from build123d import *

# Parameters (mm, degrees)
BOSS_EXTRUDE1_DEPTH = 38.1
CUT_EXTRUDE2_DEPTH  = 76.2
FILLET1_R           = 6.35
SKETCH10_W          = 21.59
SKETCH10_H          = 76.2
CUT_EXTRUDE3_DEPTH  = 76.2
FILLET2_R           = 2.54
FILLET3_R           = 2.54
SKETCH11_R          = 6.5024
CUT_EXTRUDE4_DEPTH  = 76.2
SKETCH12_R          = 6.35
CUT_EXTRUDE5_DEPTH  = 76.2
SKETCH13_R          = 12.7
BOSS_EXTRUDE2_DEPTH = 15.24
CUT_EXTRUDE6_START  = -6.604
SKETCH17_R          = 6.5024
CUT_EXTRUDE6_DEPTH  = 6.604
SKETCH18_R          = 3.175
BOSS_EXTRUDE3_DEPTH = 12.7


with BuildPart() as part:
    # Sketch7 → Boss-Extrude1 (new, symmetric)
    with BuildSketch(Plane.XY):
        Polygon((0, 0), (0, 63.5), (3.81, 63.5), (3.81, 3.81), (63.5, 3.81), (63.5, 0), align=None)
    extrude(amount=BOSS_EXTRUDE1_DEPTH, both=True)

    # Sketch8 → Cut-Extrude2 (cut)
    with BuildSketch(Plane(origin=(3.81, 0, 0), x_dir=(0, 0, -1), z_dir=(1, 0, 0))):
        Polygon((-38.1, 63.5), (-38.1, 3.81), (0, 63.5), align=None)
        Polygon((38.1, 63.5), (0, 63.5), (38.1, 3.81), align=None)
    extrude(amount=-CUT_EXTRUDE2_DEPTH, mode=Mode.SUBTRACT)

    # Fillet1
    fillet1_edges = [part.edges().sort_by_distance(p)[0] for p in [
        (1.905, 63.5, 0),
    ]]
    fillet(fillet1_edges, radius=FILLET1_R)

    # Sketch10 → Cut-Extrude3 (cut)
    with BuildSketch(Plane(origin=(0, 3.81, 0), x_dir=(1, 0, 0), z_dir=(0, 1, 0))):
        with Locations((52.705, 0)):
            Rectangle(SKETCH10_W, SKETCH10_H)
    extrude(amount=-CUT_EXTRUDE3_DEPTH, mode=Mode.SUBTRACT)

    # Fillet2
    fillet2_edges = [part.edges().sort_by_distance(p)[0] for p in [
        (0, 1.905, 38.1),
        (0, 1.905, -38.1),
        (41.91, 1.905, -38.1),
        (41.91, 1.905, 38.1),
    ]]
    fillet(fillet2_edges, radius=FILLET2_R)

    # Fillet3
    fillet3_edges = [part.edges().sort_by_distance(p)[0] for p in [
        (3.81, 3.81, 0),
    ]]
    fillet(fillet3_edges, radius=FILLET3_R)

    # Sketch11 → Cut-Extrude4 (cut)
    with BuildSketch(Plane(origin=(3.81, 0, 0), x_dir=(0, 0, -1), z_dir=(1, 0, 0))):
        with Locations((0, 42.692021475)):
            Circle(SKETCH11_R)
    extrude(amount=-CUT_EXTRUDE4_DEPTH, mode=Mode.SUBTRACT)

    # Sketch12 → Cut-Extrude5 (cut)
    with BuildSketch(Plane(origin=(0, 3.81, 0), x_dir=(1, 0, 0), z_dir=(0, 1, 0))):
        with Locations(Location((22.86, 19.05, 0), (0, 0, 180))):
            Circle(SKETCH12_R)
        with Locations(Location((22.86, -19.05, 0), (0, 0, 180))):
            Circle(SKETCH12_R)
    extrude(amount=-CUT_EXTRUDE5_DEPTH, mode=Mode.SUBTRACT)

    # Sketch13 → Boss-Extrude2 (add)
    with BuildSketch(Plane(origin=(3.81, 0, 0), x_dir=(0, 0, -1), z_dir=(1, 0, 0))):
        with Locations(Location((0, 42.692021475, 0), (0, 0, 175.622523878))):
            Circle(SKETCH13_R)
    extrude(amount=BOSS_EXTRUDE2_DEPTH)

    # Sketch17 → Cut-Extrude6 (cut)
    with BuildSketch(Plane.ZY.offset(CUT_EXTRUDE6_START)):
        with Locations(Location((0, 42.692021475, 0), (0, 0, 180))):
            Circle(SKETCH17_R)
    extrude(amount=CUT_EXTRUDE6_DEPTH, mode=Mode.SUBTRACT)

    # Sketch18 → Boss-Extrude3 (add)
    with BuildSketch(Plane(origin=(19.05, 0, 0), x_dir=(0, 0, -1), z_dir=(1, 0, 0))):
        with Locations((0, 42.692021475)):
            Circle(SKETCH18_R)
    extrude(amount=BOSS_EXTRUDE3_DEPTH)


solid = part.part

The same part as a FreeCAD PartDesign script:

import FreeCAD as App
import Part
import Sketcher
from FreeCAD import Vector
Q = App.Units.Quantity


def edges_at(feature, points):
    """Names of the edges that pass closest to the given points."""
    edges = feature.Shape.Edges
    near = lambda p: min(range(len(edges)), key=lambda i: edges[i].distToShape(Part.Vertex(*p))[0])
    return sorted({f"Edge{near(p) + 1}" for p in points})


def add_polygon(sketch, points):
    """Adds a closed chain of lines whose ends are joined by coincident constraints."""
    first, n = sketch.GeometryCount, len(points)
    for a, b in zip(points, points[1:] + points[:1]):
        sketch.addGeometry(Part.LineSegment(App.Vector(*a, 0), App.Vector(*b, 0)), False)
    for i in range(n):
        sketch.addConstraint(Sketcher.Constraint("Coincident", first + i, 2, first + (i + 1) % n, 1))

doc = App.newDocument("Part")
body = doc.addObject("PartDesign::Body", "Body")

# Sketch on XY plane
sketch1 = body.newObject("Sketcher::SketchObject", "Sketch")
sketch1.AttachmentSupport = (doc.getObject("XY_Plane"), [""])
sketch1.MapMode = "FlatFace"
add_polygon(sketch1, [(0, 63.5), (0, 0), (63.5, 0), (63.5, 3.8), (3.8, 3.8), (3.8, 63.5)])  # lines 0-5
sketch1.addConstraint(Sketcher.Constraint("Vertical", 0))
sketch1.addConstraint(Sketcher.Constraint("Horizontal", 1))
sketch1.addConstraint(Sketcher.Constraint("Vertical", 2))
sketch1.addConstraint(Sketcher.Constraint("Horizontal", 3))
sketch1.addConstraint(Sketcher.Constraint("Vertical", 4))
sketch1.addConstraint(Sketcher.Constraint("Horizontal", 5))
sketch1.addConstraint(Sketcher.Constraint("Coincident", 0, 2, -1, 1))
sketch1.addConstraint(Sketcher.Constraint("Equal", 1, 0))
sketch1.addConstraint(Sketcher.Constraint("Equal", 5, 2))
sketch1.addConstraint(Sketcher.Constraint("DistanceX", 1, 1, 1, 2, Q("2.5 in")))
sketch1.addConstraint(Sketcher.Constraint("DistanceX", 3, 2, 3, 1, Q("2.35 in")))
pad1 = body.newObject("PartDesign::Pad", "Pad")
pad1.Profile = sketch1
pad1.Length = Q("3 in")
pad1.Midplane = True

# Sketch on YZ plane
sketch2 = body.newObject("Sketcher::SketchObject", "Sketch001")
sketch2.AttachmentSupport = (doc.getObject("YZ_Plane"), [""])
sketch2.MapMode = "FlatFace"
sketch2.AttachmentOffset = App.Placement(Vector(0, 0, 0.15 * 25.4), App.Rotation())
add_polygon(sketch2, [(64, 38), (4, 38), (64, 0)])  # lines 0-2
add_polygon(sketch2, [(64, -38), (64, 0), (4, -38)])  # lines 3-5
sketch2.addConstraint(Sketcher.Constraint("Horizontal", 0))
sketch2.addConstraint(Sketcher.Constraint("Vertical", 2))
sketch2.addConstraint(Sketcher.Constraint("Vertical", 3))
sketch2.addConstraint(Sketcher.Constraint("Horizontal", 5))
sketch2.addConstraint(Sketcher.Constraint("Coincident", 3, 2, 1, 2))
sketch2.addConstraint(Sketcher.Constraint("Symmetric", 0, 2, 4, 2, -1))
sketch2.addConstraint(Sketcher.Constraint("PointOnObject", 1, 2, -1))
sketch2.addConstraint(Sketcher.Constraint("DistanceY", 2, 1, 2, 2, Q("1.5 in")))
sketch2.addConstraint(Sketcher.Constraint("DistanceX", 0, 2, 0, 1, Q("2.35 in")))
sketch2.addConstraint(Sketcher.Constraint("DistanceX", -1, 1, 1, 2, Q("2.5 in")))
pocket1 = body.newObject("PartDesign::Pocket", "Pocket")
pocket1.Profile = sketch2
pocket1.Length = Q("3 in")
doc.recompute()

fillet = body.newObject("PartDesign::Fillet", "Fillet")
fillet.Base = (pocket1, edges_at(pocket1, [(1.905, 63.5, 0)]))
fillet.Radius = Q("0.25 in")

# Sketch on XZ plane
sketch3 = body.newObject("Sketcher::SketchObject", "Sketch002")
sketch3.AttachmentSupport = (doc.getObject("XZ_Plane"), [""])
sketch3.MapMode = "FlatFace"
sketch3.AttachmentOffset = App.Placement(Vector(0, 0, -0.15 * 25.4), App.Rotation())
add_polygon(sketch3, [(42, -38), (42, 38), (64, 38), (64, -38)])  # lines 0-3
sketch3.addConstraint(Sketcher.Constraint("Vertical", 0))
sketch3.addConstraint(Sketcher.Constraint("Horizontal", 1))
sketch3.addConstraint(Sketcher.Constraint("Vertical", 2))
sketch3.addConstraint(Sketcher.Constraint("Horizontal", 3))
sketch3.addConstraint(Sketcher.Constraint("DistanceY", 0, 1, 0, 2, Q("3 in")))
sketch3.addConstraint(Sketcher.Constraint("DistanceX", 1, 1, 1, 2, Q("0.85 in")))
sketch3.addConstraint(Sketcher.Constraint("DistanceY", -1, 1, 0, 2, Q("1.5 in")))
sketch3.addConstraint(Sketcher.Constraint("DistanceX", -1, 1, 1, 2, Q("2.5 in")))
pocket2 = body.newObject("PartDesign::Pocket", "Pocket001")
pocket2.Profile = sketch3
pocket2.Length = Q("3 in")
pocket2.Reversed = True
doc.recompute()

fillet2 = body.newObject("PartDesign::Fillet", "Fillet001")
fillet2.Base = (pocket2, edges_at(pocket2, [
    (0, 1.905, 38.1),
    (0, 1.905, -38.1),
    (41.91, 1.905, -38.1),
    (41.91, 1.905, 38.1),
]))
fillet2.Radius = Q("0.1 in")
doc.recompute()

fillet3 = body.newObject("PartDesign::Fillet", "Fillet002")
fillet3.Base = (fillet2, edges_at(fillet2, [(3.81, 3.81, 0)]))
fillet3.Radius = Q("0.1 in")

# Sketch on YZ plane
sketch4 = body.newObject("Sketcher::SketchObject", "Sketch003")
sketch4.AttachmentSupport = (doc.getObject("YZ_Plane"), [""])
sketch4.MapMode = "FlatFace"
sketch4.AttachmentOffset = App.Placement(Vector(0, 0, 0.15 * 25.4), App.Rotation())
sketch4.addGeometry(Part.Circle(Vector(43, 0, 0), Vector(0, 0, 1), 7), False)
sketch4.addConstraint(Sketcher.Constraint("PointOnObject", 0, 3, -1))
sketch4.addConstraint(Sketcher.Constraint("Diameter", 0, Q("0.512 in")))
sketch4.addConstraint(Sketcher.Constraint("DistanceX", -1, 1, 0, 3, Q("42.692021 mm")))
pocket3 = body.newObject("PartDesign::Pocket", "Pocket002")
pocket3.Profile = sketch4
pocket3.Length = Q("3 in")

# Sketch on XZ plane
sketch5 = body.newObject("Sketcher::SketchObject", "Sketch004")
sketch5.AttachmentSupport = (doc.getObject("XZ_Plane"), [""])
sketch5.MapMode = "FlatFace"
sketch5.AttachmentOffset = App.Placement(Vector(0, 0, -0.15 * 25.4), App.Rotation())
sketch5.addGeometry(Part.Circle(Vector(23, -19, 0), Vector(0, 0, 1), 6), False)
sketch5.addGeometry(Part.Circle(Vector(23, 19, 0), Vector(0, 0, 1), 6), False)
sketch5.addConstraint(Sketcher.Constraint("Equal", 0, 1))
sketch5.addConstraint(Sketcher.Constraint("Symmetric", 0, 3, 1, 3, -1))
sketch5.addConstraint(Sketcher.Constraint("Diameter", 0, Q("0.5 in")))
sketch5.addConstraint(Sketcher.Constraint("DistanceX", -1, 1, 0, 3, Q("0.9 in")))
sketch5.addConstraint(Sketcher.Constraint("DistanceY", 0, 3, 1, 3, Q("1.5 in")))
pocket4 = body.newObject("PartDesign::Pocket", "Pocket003")
pocket4.Profile = sketch5
pocket4.Length = Q("3 in")
pocket4.Reversed = True

# Sketch on YZ plane
sketch6 = body.newObject("Sketcher::SketchObject", "Sketch005")
sketch6.AttachmentSupport = (doc.getObject("YZ_Plane"), [""])
sketch6.MapMode = "FlatFace"
sketch6.AttachmentOffset = App.Placement(Vector(0, 0, 0.15 * 25.4), App.Rotation())
sketch6.addGeometry(Part.Circle(Vector(43, 0, 0), Vector(0, 0, 1), 13), False)
sketch6.addConstraint(Sketcher.Constraint("PointOnObject", 0, 3, -1))
sketch6.addConstraint(Sketcher.Constraint("Diameter", 0, Q("1 in")))
sketch6.addConstraint(Sketcher.Constraint("DistanceX", -1, 1, 0, 3, Q("42.692021 mm")))
pad2 = body.newObject("PartDesign::Pad", "Pad001")
pad2.Profile = sketch6
pad2.Length = Q("0.6 in")

# Sketch on YZ plane
sketch7 = body.newObject("Sketcher::SketchObject", "Sketch006")
sketch7.AttachmentSupport = (doc.getObject("YZ_Plane"), [""])
sketch7.MapMode = "FlatFace"
sketch7.AttachmentOffset = App.Placement(Vector(0, 0, 0.26 * 25.4), App.Rotation())
sketch7.addGeometry(Part.Circle(Vector(43, 0, 0), Vector(0, 0, 1), 7), False)
sketch7.addConstraint(Sketcher.Constraint("PointOnObject", 0, 3, -1))
sketch7.addConstraint(Sketcher.Constraint("Diameter", 0, Q("0.512 in")))
sketch7.addConstraint(Sketcher.Constraint("DistanceX", -1, 1, 0, 3, Q("42.692021 mm")))
pocket5 = body.newObject("PartDesign::Pocket", "Pocket004")
pocket5.Profile = sketch7
pocket5.Length = Q("0.26 in")

# Sketch on YZ plane
sketch8 = body.newObject("Sketcher::SketchObject", "Sketch007")
sketch8.AttachmentSupport = (doc.getObject("YZ_Plane"), [""])
sketch8.MapMode = "FlatFace"
sketch8.AttachmentOffset = App.Placement(Vector(0, 0, 0.75 * 25.4), App.Rotation())
sketch8.addGeometry(Part.Circle(Vector(42.7, 0, 0), Vector(0, 0, 1), 3.2), False)
sketch8.addConstraint(Sketcher.Constraint("PointOnObject", 0, 3, -1))
sketch8.addConstraint(Sketcher.Constraint("Diameter", 0, Q("0.25 in")))
sketch8.addConstraint(Sketcher.Constraint("DistanceX", -1, 1, 0, 3, Q("42.692021 mm")))
pad3 = body.newObject("PartDesign::Pad", "Pad002")
pad3.Profile = sketch8
pad3.Length = Q("0.5 in")

doc.recompute()
